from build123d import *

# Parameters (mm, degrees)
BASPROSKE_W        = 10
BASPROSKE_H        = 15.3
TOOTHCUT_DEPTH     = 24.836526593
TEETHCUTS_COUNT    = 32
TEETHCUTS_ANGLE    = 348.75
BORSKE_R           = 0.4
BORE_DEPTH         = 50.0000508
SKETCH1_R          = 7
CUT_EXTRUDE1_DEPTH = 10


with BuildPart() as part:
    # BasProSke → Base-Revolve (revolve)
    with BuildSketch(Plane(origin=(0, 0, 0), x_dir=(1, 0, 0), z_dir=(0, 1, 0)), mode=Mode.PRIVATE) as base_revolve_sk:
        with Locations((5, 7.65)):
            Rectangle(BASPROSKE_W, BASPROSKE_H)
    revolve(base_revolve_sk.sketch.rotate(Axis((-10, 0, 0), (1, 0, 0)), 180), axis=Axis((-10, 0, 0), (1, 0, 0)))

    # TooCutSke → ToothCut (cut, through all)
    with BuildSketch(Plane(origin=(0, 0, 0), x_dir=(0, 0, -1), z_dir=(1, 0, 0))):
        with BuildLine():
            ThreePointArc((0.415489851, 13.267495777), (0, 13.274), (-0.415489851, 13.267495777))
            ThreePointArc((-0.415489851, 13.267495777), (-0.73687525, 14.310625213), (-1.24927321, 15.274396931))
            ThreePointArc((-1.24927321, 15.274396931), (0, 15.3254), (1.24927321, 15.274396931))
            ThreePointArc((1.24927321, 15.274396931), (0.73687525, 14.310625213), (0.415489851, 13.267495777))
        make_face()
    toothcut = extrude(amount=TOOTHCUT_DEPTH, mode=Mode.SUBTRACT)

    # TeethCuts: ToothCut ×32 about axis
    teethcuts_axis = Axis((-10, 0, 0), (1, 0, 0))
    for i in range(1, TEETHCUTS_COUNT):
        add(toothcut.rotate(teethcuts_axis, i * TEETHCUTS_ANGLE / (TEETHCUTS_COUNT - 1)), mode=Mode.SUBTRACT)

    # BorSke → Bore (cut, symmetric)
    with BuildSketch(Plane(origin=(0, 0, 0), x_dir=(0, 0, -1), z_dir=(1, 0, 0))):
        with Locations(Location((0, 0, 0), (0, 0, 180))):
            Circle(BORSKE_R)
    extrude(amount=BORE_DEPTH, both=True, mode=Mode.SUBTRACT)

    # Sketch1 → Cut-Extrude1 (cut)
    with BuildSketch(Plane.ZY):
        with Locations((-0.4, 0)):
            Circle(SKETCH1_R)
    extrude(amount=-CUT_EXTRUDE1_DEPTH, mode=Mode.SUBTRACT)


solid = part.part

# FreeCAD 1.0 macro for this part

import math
import FreeCAD as App
import Part
import Sketcher
from FreeCAD import Vector
Q = App.Units.Quantity

doc = App.newDocument("Part")
body = doc.addObject("PartDesign::Body", "Body")

sketch1 = body.newObject("Sketcher::SketchObject", "Sketch")
sketch1.AttachmentSupport = (doc.getObject("XZ_Plane"), [""])
sketch1.MapMode = "FlatFace"
sketch1.addGeometry([
    Part.LineSegment(Vector(0, -15.3, 0), Vector(0, 0, 0)),
    Part.LineSegment(Vector(0, 0, 0), Vector(10, 0, 0)),
    Part.LineSegment(Vector(10, 0, 0), Vector(10, -15.3, 0)),
    Part.LineSegment(Vector(10, -15.3, 0), Vector(0, -15.3, 0)),
], False)
sketch1.addConstraint([
    Sketcher.Constraint("Coincident", 0, 2, 1, 1),
    Sketcher.Constraint("Coincident", 1, 2, 2, 1),
    Sketcher.Constraint("Coincident", 2, 2, 3, 1),
    Sketcher.Constraint("Coincident", 3, 2, 0, 1),
    Sketcher.Constraint("Vertical", 0),
    Sketcher.Constraint("Horizontal", 1),
    Sketcher.Constraint("Vertical", 2),
    Sketcher.Constraint("Horizontal", 3),
    Sketcher.Constraint("Coincident", 0, 2, -1, 1),
    Sketcher.Constraint("DistanceX", 1, 1, 1, 2, Q("10 mm")),
    Sketcher.Constraint("DistanceY", 0, 1, 0, 2, Q("15.3 mm")),
])
revolution = body.newObject("PartDesign::Revolution", "Revolution")
revolution.Profile = sketch1
revolution.ReferenceAxis = (sketch1, ["H_Axis"])
revolution.Angle = 360

sketch2 = body.newObject("Sketcher::SketchObject", "Sketch001")
sketch2.AttachmentSupport = (doc.getObject("YZ_Plane"), [""])
sketch2.MapMode = "FlatFace"
sketch2.addGeometry([
    Part.ArcOfCircle(Part.Circle(Vector(-0.000001, 0, 0), Vector(0, 0, 1), 13.274001), math.radians(-1.79371), math.radians(1.79371)),
    Part.ArcOfCircle(Part.Circle(Vector(12.100719, -6.056078, 0), Vector(0, 0, 1), 5.76), math.radians(56.565338), math.radians(78.312986)),
    Part.ArcOfCircle(Part.Circle(Vector(0, 0, 0), Vector(0, 0, 1), 15.3254), math.radians(-4.67574), math.radians(4.67574)),
    Part.ArcOfCircle(Part.Circle(Vector(12.100719, 6.056078, 0), Vector(0, 0, 1), 5.76), math.radians(-78.312986), math.radians(-56.565338)),
], False)
sketch2.addConstraint([
    Sketcher.Constraint("Coincident", 0, 1, 1, 2),
    Sketcher.Constraint("Coincident", 1, 1, 2, 1),
    Sketcher.Constraint("Coincident", 2, 2, 3, 2),
    Sketcher.Constraint("Coincident", 3, 1, 0, 2),
    Sketcher.Constraint("Coincident", 0, 3, -1, 1),
    Sketcher.Constraint("Coincident", 2, 3, -1, 1),
    Sketcher.Constraint("Equal", 1, 3),
    Sketcher.Constraint("Symmetric", 1, 3, 3, 3, -1),
    Sketcher.Constraint("Radius", 1, Q("5.76 mm")),
    Sketcher.Constraint("Radius", 0, Q("13.274001 mm")),
    Sketcher.Constraint("Radius", 2, Q("15.3254 mm")),
    Sketcher.Constraint("DistanceX", 0, 1, 1, 1, Q("2.006901 mm")),
    Sketcher.Constraint("DistanceX", -1, 1, 1, 3, Q("12.100719 mm")),
])
pocket1 = body.newObject("PartDesign::Pocket", "Pocket")
pocket1.Profile = sketch2
pocket1.Type = "ThroughAll"
pocket1.Reversed = True
doc.recompute()

polarpattern = body.newObject("PartDesign::PolarPattern", "PolarPattern")
polarpattern.Originals = [pocket1]
polarpattern.Axis = (doc.getObject("X_Axis"), [""])
polarpattern.Angle = 360
polarpattern.Occurrences = 32
body.Tip = polarpattern

sketch3 = body.newObject("Sketcher::SketchObject", "Sketch002")
sketch3.AttachmentSupport = (doc.getObject("YZ_Plane"), [""])
sketch3.MapMode = "FlatFace"
sketch3.addGeometry(Part.Circle(Vector(0, 0, 0), Vector(0, 0, 1), 0.4), False)
sketch3.addConstraint([
    Sketcher.Constraint("Coincident", 0, 3, -1, 1),
    Sketcher.Constraint("Diameter", 0, Q("0.8 mm")),
])
pocket2 = body.newObject("PartDesign::Pocket", "Pocket001")
pocket2.Profile = sketch3
pocket2.Length = 100.000102
pocket2.Midplane = True

sketch4 = body.newObject("Sketcher::SketchObject", "Sketch003")
sketch4.AttachmentSupport = (doc.getObject("YZ_Plane"), [""])
sketch4.MapMode = "FlatFace"
sketch4.addGeometry(Part.Circle(Vector(0, -0.4, 0), Vector(0, 0, 1), 7), False)
sketch4.addConstraint([
    Sketcher.Constraint("PointOnObject", 0, 3, -2),
    Sketcher.Constraint("Diameter", 0, Q("14 mm")),
    Sketcher.Constraint("DistanceY", 0, 3, -1, 1, Q("0.4 mm")),
])
pocket3 = body.newObject("PartDesign::Pocket", "Pocket002")
pocket3.Profile = sketch4
pocket3.Length = 10
pocket3.Reversed = True

doc.recompute()
